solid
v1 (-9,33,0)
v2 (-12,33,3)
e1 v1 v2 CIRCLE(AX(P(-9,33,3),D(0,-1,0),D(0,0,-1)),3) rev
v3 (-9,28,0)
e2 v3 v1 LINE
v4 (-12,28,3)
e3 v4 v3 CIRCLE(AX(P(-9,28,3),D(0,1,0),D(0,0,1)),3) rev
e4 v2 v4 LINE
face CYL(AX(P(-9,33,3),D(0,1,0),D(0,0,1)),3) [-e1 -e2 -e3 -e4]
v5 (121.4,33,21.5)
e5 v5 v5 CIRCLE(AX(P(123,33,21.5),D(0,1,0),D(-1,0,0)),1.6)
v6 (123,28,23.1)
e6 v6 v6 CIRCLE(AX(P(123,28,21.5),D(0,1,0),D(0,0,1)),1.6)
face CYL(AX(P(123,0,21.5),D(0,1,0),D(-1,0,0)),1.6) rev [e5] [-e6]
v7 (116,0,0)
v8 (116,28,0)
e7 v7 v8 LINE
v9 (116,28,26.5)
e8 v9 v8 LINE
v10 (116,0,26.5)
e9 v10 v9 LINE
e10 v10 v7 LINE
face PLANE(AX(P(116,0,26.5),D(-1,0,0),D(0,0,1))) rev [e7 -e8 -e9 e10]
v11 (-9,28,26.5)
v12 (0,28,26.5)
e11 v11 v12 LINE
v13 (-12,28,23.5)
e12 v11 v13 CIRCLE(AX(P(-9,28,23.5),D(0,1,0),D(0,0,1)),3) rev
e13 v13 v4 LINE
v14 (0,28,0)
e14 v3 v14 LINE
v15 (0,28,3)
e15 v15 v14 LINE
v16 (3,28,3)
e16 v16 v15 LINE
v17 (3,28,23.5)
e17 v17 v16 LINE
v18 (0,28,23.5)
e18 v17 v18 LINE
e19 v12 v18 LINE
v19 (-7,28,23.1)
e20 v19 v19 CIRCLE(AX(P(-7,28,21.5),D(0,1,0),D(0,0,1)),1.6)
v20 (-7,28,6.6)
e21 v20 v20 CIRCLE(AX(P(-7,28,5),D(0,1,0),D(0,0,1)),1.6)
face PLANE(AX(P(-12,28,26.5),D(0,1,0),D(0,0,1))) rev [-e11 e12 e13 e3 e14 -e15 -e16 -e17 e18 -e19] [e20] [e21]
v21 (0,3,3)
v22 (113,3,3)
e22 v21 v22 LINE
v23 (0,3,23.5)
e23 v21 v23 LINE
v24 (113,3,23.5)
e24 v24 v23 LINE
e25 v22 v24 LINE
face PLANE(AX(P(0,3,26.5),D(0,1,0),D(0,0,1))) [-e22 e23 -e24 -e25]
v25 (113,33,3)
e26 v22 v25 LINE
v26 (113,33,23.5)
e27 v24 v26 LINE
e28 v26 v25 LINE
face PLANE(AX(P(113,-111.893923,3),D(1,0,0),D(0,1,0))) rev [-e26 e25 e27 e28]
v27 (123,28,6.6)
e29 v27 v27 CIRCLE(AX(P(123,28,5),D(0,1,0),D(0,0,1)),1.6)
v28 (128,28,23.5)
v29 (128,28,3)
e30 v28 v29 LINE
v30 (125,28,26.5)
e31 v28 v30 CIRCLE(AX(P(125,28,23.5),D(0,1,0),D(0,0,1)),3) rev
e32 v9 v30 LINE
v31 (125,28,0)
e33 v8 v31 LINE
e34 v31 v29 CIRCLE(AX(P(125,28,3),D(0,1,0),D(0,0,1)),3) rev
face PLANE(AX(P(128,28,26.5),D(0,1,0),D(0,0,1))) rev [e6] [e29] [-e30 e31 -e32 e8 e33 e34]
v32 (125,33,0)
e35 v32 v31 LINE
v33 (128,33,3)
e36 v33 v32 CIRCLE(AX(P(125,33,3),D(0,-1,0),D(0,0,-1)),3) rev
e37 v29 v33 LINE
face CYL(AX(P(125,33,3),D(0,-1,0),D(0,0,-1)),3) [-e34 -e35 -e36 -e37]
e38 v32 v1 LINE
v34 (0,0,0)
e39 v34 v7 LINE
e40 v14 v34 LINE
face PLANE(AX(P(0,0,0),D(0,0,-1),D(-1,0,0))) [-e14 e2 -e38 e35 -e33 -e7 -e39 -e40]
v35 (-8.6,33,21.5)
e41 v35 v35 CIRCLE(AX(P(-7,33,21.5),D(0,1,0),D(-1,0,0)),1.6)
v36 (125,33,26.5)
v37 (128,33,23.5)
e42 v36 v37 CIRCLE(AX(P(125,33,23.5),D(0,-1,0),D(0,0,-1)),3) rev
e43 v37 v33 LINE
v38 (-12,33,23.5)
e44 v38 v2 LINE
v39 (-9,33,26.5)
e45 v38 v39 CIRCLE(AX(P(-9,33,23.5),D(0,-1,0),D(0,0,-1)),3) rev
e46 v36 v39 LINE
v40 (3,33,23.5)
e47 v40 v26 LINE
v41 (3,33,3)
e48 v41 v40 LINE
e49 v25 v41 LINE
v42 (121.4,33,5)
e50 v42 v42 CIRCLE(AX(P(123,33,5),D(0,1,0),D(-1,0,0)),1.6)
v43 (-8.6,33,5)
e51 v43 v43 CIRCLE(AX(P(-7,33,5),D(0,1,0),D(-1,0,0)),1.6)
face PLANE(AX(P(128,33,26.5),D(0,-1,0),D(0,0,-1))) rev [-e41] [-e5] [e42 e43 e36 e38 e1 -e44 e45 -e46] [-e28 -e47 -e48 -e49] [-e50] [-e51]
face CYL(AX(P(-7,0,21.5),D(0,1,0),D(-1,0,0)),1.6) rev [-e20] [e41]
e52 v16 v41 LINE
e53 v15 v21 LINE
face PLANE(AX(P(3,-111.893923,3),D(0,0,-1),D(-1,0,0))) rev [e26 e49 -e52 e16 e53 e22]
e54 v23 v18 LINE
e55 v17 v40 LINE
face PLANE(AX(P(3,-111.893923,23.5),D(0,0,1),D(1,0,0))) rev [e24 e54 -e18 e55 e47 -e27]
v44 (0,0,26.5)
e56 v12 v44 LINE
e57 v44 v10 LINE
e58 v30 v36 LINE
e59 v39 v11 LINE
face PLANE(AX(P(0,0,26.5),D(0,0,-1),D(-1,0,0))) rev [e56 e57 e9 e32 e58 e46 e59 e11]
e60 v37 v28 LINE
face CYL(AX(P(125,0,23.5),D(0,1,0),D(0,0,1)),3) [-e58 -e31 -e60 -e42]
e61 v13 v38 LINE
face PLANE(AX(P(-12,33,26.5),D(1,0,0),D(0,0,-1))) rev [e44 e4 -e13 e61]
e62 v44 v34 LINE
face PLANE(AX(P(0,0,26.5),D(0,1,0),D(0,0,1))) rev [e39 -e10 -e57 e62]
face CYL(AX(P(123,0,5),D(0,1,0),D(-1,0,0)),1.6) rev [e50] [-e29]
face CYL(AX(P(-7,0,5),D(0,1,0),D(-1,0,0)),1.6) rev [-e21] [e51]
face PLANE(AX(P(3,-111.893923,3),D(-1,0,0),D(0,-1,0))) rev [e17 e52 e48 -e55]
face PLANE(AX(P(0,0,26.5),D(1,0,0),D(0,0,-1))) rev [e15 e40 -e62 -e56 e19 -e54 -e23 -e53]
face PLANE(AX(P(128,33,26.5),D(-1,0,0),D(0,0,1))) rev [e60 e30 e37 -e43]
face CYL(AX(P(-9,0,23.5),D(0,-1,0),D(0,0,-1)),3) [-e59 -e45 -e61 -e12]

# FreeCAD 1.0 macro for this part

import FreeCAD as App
import Part
import Sketcher


def edges_at(feature, points):
    """Names of the edges that pass closest to the given points."""
    edges = feature.Shape.Edges
    near = lambda p: min(range(len(edges)), key=lambda i: edges[i].distToShape(Part.Vertex(*p))[0])
    return sorted({f"Edge{near(p) + 1}" for p in points})

doc = App.newDocument("Part")
params = doc.addObject("Spreadsheet::Sheet", "Params")
for row, (alias, value) in enumerate([
    ("sketch1_width", "116 mm"),
    ("sketch1_width2", "12 mm"),
    ("sketch1_height", "28 mm"),
    ("sketch1_height2", "5 mm"),
    ("pad1_length", "26.5 mm"),
    ("sketch2_width", "110 mm"),
    ("sketch2_height", "20.5 mm"),
    ("pocket1_length", "30 mm"),
    ("sketch3_width", "25 mm"),
    ("sketch3_height", "20.5 mm"),
    ("pocket2_length", "3 mm"),
    ("sketch4_diameter", "3.2 mm"),
    ("fillet_radius", "3 mm"),
], start=1):
    params.set(f"A{row}", alias)
    params.set(f"B{row}", "=" + value)
    params.setAlias(f"B{row}", alias)

body = doc.addObject("PartDesign::Body", "Body")

sketch1 = body.newObject("Sketcher::SketchObject", "Sketch")
sketch1.AttachmentSupport = (doc.getObject("XY_Plane"), [""])
sketch1.MapMode = "FlatFace"
sketch1.addGeometry([
    Part.LineSegment(App.Vector(0, 0, 0), App.Vector(116, 0, 0)),
    Part.LineSegment(App.Vector(116, 0, 0), App.Vector(116, 28, 0)),
    Part.LineSegment(App.Vector(116, 28, 0), App.Vector(128, 28, 0)),
    Part.LineSegment(App.Vector(128, 28, 0), App.Vector(128, 33, 0)),
    Part.LineSegment(App.Vector(128, 33, 0), App.Vector(-12, 33, 0)),
    Part.LineSegment(App.Vector(-12, 33, 0), App.Vector(-12, 28, 0)),
    Part.LineSegment(App.Vector(-12, 28, 0), App.Vector(0, 28, 0)),
    Part.LineSegment(App.Vector(0, 28, 0), App.Vector(0, 0, 0)),
], False)
sketch1.addConstraint([
    Sketcher.Constraint("Coincident", 0, 2, 1, 1),
    Sketcher.Constraint("Coincident", 1, 2, 2, 1),
    Sketcher.Constraint("Coincident", 2, 2, 3, 1),
    Sketcher.Constraint("Coincident", 3, 2, 4, 1),
    Sketcher.Constraint("Coincident", 4, 2, 5, 1),
    Sketcher.Constraint("Coincident", 5, 2, 6, 1),
    Sketcher.Constraint("Coincident", 6, 2, 7, 1),
    Sketcher.Constraint("Coincident", 7, 2, 0, 1),
    Sketcher.Constraint("Horizontal", 0),
    Sketcher.Constraint("Vertical", 1),
    Sketcher.Constraint("Horizontal", 2),
    Sketcher.Constraint("Vertical", 3),
    Sketcher.Constraint("Horizontal", 4),
    Sketcher.Constraint("Vertical", 5),
    Sketcher.Constraint("Horizontal", 6),
    Sketcher.Constraint("Vertical", 7),
    Sketcher.Constraint("Coincident", 7, 2, -1, 1),
    Sketcher.Constraint("Horizontal", 2, 2, 5, 2),
    Sketcher.Constraint("Equal", 2, 6),
    Sketcher.Constraint("DistanceX", 0, 1, 0, 2, 116.0),
    Sketcher.Constraint("DistanceX", 2, 1, 2, 2, 12.0),
    Sketcher.Constraint("DistanceY", 1, 1, 1, 2, 28.0),
    Sketcher.Constraint("DistanceY", 3, 1, 3, 2, 5.0),
])
sketch1.setExpression("Constraints[19]", "Params.sketch1_width")
sketch1.setExpression("Constraints[20]", "Params.sketch1_width2")
sketch1.setExpression("Constraints[21]", "Params.sketch1_height")
sketch1.setExpression("Constraints[22]", "Params.sketch1_height2")
pad1 = body.newObject("PartDesign::Pad", "Pad")
pad1.Profile = sketch1
pad1.setExpression("Length", "Params.pad1_length")

sketch2 = body.newObject("Sketcher::SketchObject", "Sketch001")
sketch2.AttachmentSupport = (doc.getObject("XZ_Plane"), [""])
sketch2.MapMode = "FlatFace"
sketch2.AttachmentOffset = App.Placement(App.Vector(0, 0, -33), App.Rotation())
sketch2.addGeometry([
    Part.LineSegment(App.Vector(3, 3, 0), App.Vector(3, 23.5, 0)),
    Part.LineSegment(App.Vector(3, 23.5, 0), App.Vector(113, 23.5, 0)),
    Part.LineSegment(App.Vector(113, 23.5, 0), App.Vector(113, 3, 0)),
    Part.LineSegment(App.Vector(113, 3, 0), App.Vector(3, 3, 0)),
], False)
sketch2.addConstraint([
    Sketcher.Constraint("Coincident", 0, 2, 1, 1),
    Sketcher.Constraint("Coincident", 1, 2, 2, 1),
    Sketcher.Constraint("Coincident", 2, 2, 3, 1),
    Sketcher.Constraint("Coincident", 3, 2, 0, 1),
    Sketcher.Constraint("Vertical", 0),
    Sketcher.Constraint("Horizontal", 1),
    Sketcher.Constraint("Vertical", 2),
    Sketcher.Constraint("Horizontal", 3),
    Sketcher.Constraint("DistanceX", 1, 1, 1, 2, 110.0),
    Sketcher.Constraint("DistanceY", 0, 1, 0, 2, 20.5),
    Sketcher.Constraint("DistanceX", -1, 1, 0, 2, 3.0),
    Sketcher.Constraint("DistanceY", -1, 1, 2, 2, 3.0),
])
sketch2.setExpression("Constraints[8]", "Params.sketch2_width")
sketch2.setExpression("Constraints[9]", "Params.sketch2_height")
pocket1 = body.newObject("PartDesign::Pocket", "Pocket")
pocket1.Profile = sketch2
pocket1.setExpression("Length", "Params.pocket1_length")
pocket1.Reversed = True

sketch3 = body.newObject("Sketcher::SketchObject", "Sketch002")
sketch3.AttachmentSupport = (doc.getObject("YZ_Plane"), [""])
sketch3.MapMode = "FlatFace"
sketch3.addGeometry([
    Part.LineSegment(App.Vector(28, 3, 0), App.Vector(3, 3, 0)),
    Part.LineSegment(App.Vector(3, 3, 0), App.Vector(3, 23.5, 0)),
    Part.LineSegment(App.Vector(3, 23.5, 0), App.Vector(28, 23.5, 0)),
    Part.LineSegment(App.Vector(28, 23.5, 0), App.Vector(28, 3, 0)),
], False)
sketch3.addConstraint([
    Sketcher.Constraint("Coincident", 0, 2, 1, 1),
    Sketcher.Constraint("Coincident", 1, 2, 2, 1),
    Sketcher.Constraint("Coincident", 2, 2, 3, 1),
    Sketcher.Constraint("Coincident", 3, 2, 0, 1),
    Sketcher.Constraint("Horizontal", 0),
    Sketcher.Constraint("Vertical", 1),
    Sketcher.Constraint("Horizontal", 2),
    Sketcher.Constraint("Vertical", 3),
    Sketcher.Constraint("DistanceX", 0, 2, 0, 1, 25.0),
    Sketcher.Constraint("DistanceY", 1, 1, 1, 2, 20.5),
    Sketcher.Constraint("DistanceX", -1, 1, 0, 2, 3.0),
    Sketcher.Constraint("DistanceY", -1, 1, 0, 2, 3.0),
])
sketch3.setExpression("Constraints[8]", "Params.sketch3_width")
sketch3.setExpression("Constraints[9]", "Params.sketch3_height")
pocket2 = body.newObject("PartDesign::Pocket", "Pocket001")
pocket2.Profile = sketch3
pocket2.setExpression("Length", "Params.pocket2_length")
pocket2.Reversed = True

sketch4 = body.newObject("Sketcher::SketchObject", "Sketch003")
sketch4.AttachmentSupport = (doc.getObject("XZ_Plane"), [""])
sketch4.MapMode = "FlatFace"
sketch4.AttachmentOffset = App.Placement(App.Vector(0, 0, -33), App.Rotation())
sketch4.addGeometry([
    Part.Circle(App.Vector(-7, 5, 0), App.Vector(0, 0, 1), 1.6),
    Part.Circle(App.Vector(123, 5, 0), App.Vector(0, 0, 1), 1.6),
    Part.Circle(App.Vector(123, 21.5, 0), App.Vector(0, 0, 1), 1.6),
    Part.Circle(App.Vector(-7, 21.5, 0), App.Vector(0, 0, 1), 1.6),
], False)
sketch4.addConstraint([
    Sketcher.Constraint("Equal", 0, 1),
    Sketcher.Constraint("Equal", 1, 2),
    Sketcher.Constraint("Equal", 2, 3),
    Sketcher.Constraint("Horizontal", 0, 3, 1, 3),
    Sketcher.Constraint("Horizontal", 2, 3, 3, 3),
    Sketcher.Constraint("Vertical", 1, 3, 2, 3),
    Sketcher.Constraint("Vertical", 0, 3, 3, 3),
    Sketcher.Constraint("Diameter", 0, 3.2),
    Sketcher.Constraint("DistanceX", 0, 3, -1, 1, 7.0),
    Sketcher.Constraint("DistanceY", -1, 1, 0, 3, 5.0),
    Sketcher.Constraint("DistanceX", -1, 1, 1, 3, 123.0),
    Sketcher.Constraint("DistanceY", -1, 1, 2, 3, 21.5),
])
sketch4.setExpression("Constraints[7]", "Params.sketch4_diameter")
pocket3 = body.newObject("PartDesign::Pocket", "Pocket002")
pocket3.Profile = sketch4
pocket3.Type = "ThroughAll"
pocket3.Reversed = True
doc.recompute()

fillet = body.newObject("PartDesign::Fillet", "Fillet")
fillet.Base = (pocket3, edges_at(pocket3, [
    (128, 30.5, 26.5),
    (-12, 30.5, 26.5),
    (-12, 30.5, 0),
    (128, 30.5, 0),
]))
fillet.setExpression("Radius", "Params.fillet_radius")

doc.recompute()
